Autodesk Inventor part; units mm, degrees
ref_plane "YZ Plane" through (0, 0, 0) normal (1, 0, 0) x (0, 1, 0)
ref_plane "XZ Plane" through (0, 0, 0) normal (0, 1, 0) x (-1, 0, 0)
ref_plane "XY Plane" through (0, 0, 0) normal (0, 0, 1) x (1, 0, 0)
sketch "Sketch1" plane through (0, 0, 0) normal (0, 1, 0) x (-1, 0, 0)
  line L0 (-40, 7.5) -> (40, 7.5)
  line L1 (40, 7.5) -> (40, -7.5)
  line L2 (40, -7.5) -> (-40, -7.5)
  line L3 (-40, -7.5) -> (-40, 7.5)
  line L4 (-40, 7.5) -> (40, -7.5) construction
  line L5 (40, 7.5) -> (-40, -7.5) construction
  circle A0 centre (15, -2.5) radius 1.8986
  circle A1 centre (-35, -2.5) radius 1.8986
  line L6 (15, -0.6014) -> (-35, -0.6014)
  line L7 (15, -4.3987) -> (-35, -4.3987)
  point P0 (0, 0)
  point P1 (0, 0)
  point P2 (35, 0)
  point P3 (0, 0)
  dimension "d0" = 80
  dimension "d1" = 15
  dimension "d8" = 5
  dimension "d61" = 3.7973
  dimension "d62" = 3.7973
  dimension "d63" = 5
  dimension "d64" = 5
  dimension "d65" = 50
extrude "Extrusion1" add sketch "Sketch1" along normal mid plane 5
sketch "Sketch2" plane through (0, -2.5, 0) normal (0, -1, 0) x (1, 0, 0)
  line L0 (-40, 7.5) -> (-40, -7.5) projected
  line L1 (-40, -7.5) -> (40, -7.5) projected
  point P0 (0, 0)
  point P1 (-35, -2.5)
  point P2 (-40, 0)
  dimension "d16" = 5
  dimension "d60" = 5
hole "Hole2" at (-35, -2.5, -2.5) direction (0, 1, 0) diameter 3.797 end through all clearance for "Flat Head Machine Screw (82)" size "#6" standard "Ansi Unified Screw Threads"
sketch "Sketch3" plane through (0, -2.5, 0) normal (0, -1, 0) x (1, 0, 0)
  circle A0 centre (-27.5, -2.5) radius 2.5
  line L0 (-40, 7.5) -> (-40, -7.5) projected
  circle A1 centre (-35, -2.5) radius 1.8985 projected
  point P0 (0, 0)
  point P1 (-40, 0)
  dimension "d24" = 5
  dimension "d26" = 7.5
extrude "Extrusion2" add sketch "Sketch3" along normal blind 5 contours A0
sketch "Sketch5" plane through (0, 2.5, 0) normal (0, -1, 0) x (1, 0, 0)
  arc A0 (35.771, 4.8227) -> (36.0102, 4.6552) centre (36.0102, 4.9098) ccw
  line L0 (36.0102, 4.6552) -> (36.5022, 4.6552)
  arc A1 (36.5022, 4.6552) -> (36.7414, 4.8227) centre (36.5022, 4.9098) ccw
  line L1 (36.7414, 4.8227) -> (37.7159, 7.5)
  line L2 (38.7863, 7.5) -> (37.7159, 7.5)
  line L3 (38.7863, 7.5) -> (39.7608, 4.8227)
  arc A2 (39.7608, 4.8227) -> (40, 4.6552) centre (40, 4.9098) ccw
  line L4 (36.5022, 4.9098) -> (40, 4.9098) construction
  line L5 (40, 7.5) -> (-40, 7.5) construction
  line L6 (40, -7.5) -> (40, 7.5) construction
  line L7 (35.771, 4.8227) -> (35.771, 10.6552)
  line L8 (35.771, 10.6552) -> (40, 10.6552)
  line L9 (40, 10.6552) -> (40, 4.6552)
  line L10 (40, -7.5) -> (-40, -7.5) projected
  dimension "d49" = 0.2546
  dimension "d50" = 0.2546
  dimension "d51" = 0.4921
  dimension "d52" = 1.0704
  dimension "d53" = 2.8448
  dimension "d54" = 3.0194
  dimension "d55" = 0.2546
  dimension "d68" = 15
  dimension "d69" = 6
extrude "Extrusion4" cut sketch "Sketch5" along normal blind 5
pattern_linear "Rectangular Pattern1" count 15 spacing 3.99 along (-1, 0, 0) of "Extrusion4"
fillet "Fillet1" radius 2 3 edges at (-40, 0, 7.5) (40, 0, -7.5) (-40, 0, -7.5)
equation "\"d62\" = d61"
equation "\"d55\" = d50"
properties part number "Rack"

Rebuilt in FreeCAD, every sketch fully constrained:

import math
import FreeCAD as App
import Part
import Sketcher

V = App.Vector
Q = App.Units.Quantity


def edges_at(feature, points):
    """Names of the edges that pass closest to the given points."""
    edges = feature.Shape.Edges
    near = lambda p: min(range(len(edges)), key=lambda i: edges[i].distToShape(Part.Vertex(*p))[0])
    return sorted({f"Edge{near(p) + 1}" for p in points})


def add_polygon(sketch, points):
    """Adds a closed chain of lines whose ends are joined by coincident constraints."""
    first, n = sketch.GeometryCount, len(points)
    for a, b in zip(points, points[1:] + points[:1]):
        sketch.addGeometry(Part.LineSegment(App.Vector(*a, 0), App.Vector(*b, 0)), False)
    for i in range(n):
        sketch.addConstraint(Sketcher.Constraint("Coincident", first + i, 2, first + (i + 1) % n, 1))

doc = App.newDocument("Part")
body = doc.addObject("PartDesign::Body", "Body")

sketch1 = doc.addObject("Sketcher::SketchObject", "Sketch")
body.addObject(sketch1)
sketch1.AttachmentSupport = (doc.XZ_Plane, [""])
sketch1.MapMode = "FlatFace"
add_polygon(sketch1, [(-40, 7.5), (40, 7.5), (40, -7.5), (-40, -7.5)])
sketch1.addGeometry(Part.ArcOfCircle(Part.Circle(V(-15, -2.5, 0), V(0, 0, 1), 1.9), math.radians(90), math.radians(270)), False)
sketch1.addGeometry(Part.LineSegment(V(-15, -4.4, 0), V(35, -4.4, 0)), False)
sketch1.addGeometry(Part.ArcOfCircle(Part.Circle(V(35, -2.5, 0), V(0, 0, 1), 1.9), math.radians(-90), math.radians(90)), False)
sketch1.addGeometry(Part.LineSegment(V(35, -0.6, 0), V(-15, -0.6, 0)), False)
sketch1.addConstraint(Sketcher.Constraint("Tangent", 4, 2, 5, 1))
sketch1.addConstraint(Sketcher.Constraint("Tangent", 5, 2, 6, 1))
sketch1.addConstraint(Sketcher.Constraint("Tangent", 6, 2, 7, 1))
sketch1.addConstraint(Sketcher.Constraint("Tangent", 7, 2, 4, 1))
sketch1.addConstraint(Sketcher.Constraint("Horizontal", 0))
sketch1.addConstraint(Sketcher.Constraint("Vertical", 1))
sketch1.addConstraint(Sketcher.Constraint("Horizontal", 2))
sketch1.addConstraint(Sketcher.Constraint("Vertical", 3))
sketch1.addConstraint(Sketcher.Constraint("Horizontal", 5))
sketch1.addConstraint(Sketcher.Constraint("Horizontal", 7))
sketch1.addConstraint(Sketcher.Constraint("Symmetric", 0, 2, 2, 2, -1, 1))
sketch1.addConstraint(Sketcher.Constraint("DistanceX", 0, 1, 0, 2, 80.0))
sketch1.addConstraint(Sketcher.Constraint("DistanceX", 5, 1, 5, 2, 50.0))
sketch1.addConstraint(Sketcher.Constraint("DistanceY", 1, 2, 1, 1, 15.0))
sketch1.addConstraint(Sketcher.Constraint("DistanceX", 4, 3, -1, 1, 15.0))
sketch1.addConstraint(Sketcher.Constraint("DistanceY", 1, 2, 6, 3, 5.0))
sketch1.addConstraint(Sketcher.Constraint("Radius", 4, 1.8986))
pad1 = doc.addObject("PartDesign::Pad", "Pad")
body.addObject(pad1)
pad1.Profile = sketch1
pad1.Length = 5
pad1.Midplane = True

sketch2 = doc.addObject("Sketcher::SketchObject", "Sketch001")
body.addObject(sketch2)
sketch2.AttachmentSupport = (doc.XZ_Plane, [""])
sketch2.MapMode = "FlatFace"
sketch2.AttachmentOffset = App.Placement(V(0, 0, 2.5), App.Rotation())
sketch2.addGeometry(Part.Circle(V(-35, -2.5, 0), V(0, 0, 1), 1.9), False)
sketch2.addConstraint(Sketcher.Constraint("Diameter", 0, 3.797))
sketch2.addConstraint(Sketcher.Constraint("DistanceX", 0, 3, -1, 1, 35.0))
sketch2.addConstraint(Sketcher.Constraint("DistanceY", 0, 3, -1, 1, 2.5))
doc.recompute()
hole = doc.addObject("PartDesign::Hole", "Hole")
body.addObject(hole)
hole.Profile = sketch2
hole.ThreadType = "None"
hole.Diameter = 3.797
hole.DepthType = "ThroughAll"

sketch3 = doc.addObject("Sketcher::SketchObject", "Sketch002")
body.addObject(sketch3)
sketch3.AttachmentSupport = (doc.XZ_Plane, [""])
sketch3.MapMode = "FlatFace"
sketch3.AttachmentOffset = App.Placement(V(0, 0, 2.5), App.Rotation())
sketch3.addGeometry(Part.Circle(V(-27.5, -2.5, 0), V(0, 0, 1), 2.5), False)
sketch3.addConstraint(Sketcher.Constraint("Diameter", 0, 5.0))
sketch3.addConstraint(Sketcher.Constraint("DistanceX", 0, 3, -1, 1, 27.5))
sketch3.addConstraint(Sketcher.Constraint("DistanceY", 0, 3, -1, 1, 2.5))
pad2 = doc.addObject("PartDesign::Pad", "Pad001")
body.addObject(pad2)
pad2.Profile = sketch3
pad2.Length = 5

sketch4 = doc.addObject("Sketcher::SketchObject", "Sketch003")
body.addObject(sketch4)
sketch4.AttachmentSupport = (doc.XZ_Plane, [""])
sketch4.MapMode = "FlatFace"
sketch4.AttachmentOffset = App.Placement(V(0, 0, -2.5), App.Rotation())
sketch4.addGeometry(Part.LineSegment(V(35.77, 10.66, 0), V(35.77, 4.82, 0)), False)
sketch4.addGeometry(Part.ArcOfCircle(Part.Circle(V(36.01, 4.91, 0), V(0, 0, 1), 0.25), math.radians(-160), math.radians(-90)), False)
sketch4.addGeometry(Part.LineSegment(V(36.01, 4.66, 0), V(36.5, 4.66, 0)), False)
sketch4.addGeometry(Part.ArcOfCircle(Part.Circle(V(36.5, 4.91, 0), V(0, 0, 1), 0.25), math.radians(-90), math.radians(-20)), False)
sketch4.addGeometry(Part.LineSegment(V(36.74, 4.82, 0), V(37.72, 7.5, 0)), False)
sketch4.addGeometry(Part.LineSegment(V(37.72, 7.5, 0), V(38.79, 7.5, 0)), False)
sketch4.addGeometry(Part.LineSegment(V(38.79, 7.5, 0), V(39.76, 4.82, 0)), False)
sketch4.addGeometry(Part.ArcOfCircle(Part.Circle(V(40, 4.91, 0), V(0, 0, 1), 0.25), math.radians(-160), math.radians(-90)), False)
sketch4.addGeometry(Part.LineSegment(V(40, 4.66, 0), V(40, 10.66, 0)), False)
sketch4.addGeometry(Part.LineSegment(V(40, 10.66, 0), V(35.77, 10.66, 0)), False)
sketch4.addConstraint(Sketcher.Constraint("Coincident", 0, 2, 1, 1))
sketch4.addConstraint(Sketcher.Constraint("Tangent", 1, 2, 2, 1))
sketch4.addConstraint(Sketcher.Constraint("Tangent", 2, 2, 3, 1))
sketch4.addConstraint(Sketcher.Constraint("Tangent", 3, 2, 4, 1))
sketch4.addConstraint(Sketcher.Constraint("Coincident", 4, 2, 5, 1))
sketch4.addConstraint(Sketcher.Constraint("Coincident", 5, 2, 6, 1))
sketch4.addConstraint(Sketcher.Constraint("Tangent", 6, 2, 7, 1))
sketch4.addConstraint(Sketcher.Constraint("Coincident", 7, 2, 8, 1))
sketch4.addConstraint(Sketcher.Constraint("Coincident", 8, 2, 9, 1))
sketch4.addConstraint(Sketcher.Constraint("Coincident", 9, 2, 0, 1))
sketch4.addConstraint(Sketcher.Constraint("Vertical", 0))
sketch4.addConstraint(Sketcher.Constraint("Horizontal", 2))
sketch4.addConstraint(Sketcher.Constraint("Horizontal", 5))
sketch4.addConstraint(Sketcher.Constraint("Vertical", 8))
sketch4.addConstraint(Sketcher.Constraint("Horizontal", 9))
sketch4.addConstraint(Sketcher.Constraint("Equal", 1, 3))
sketch4.addConstraint(Sketcher.Constraint("Equal", 3, 7))
sketch4.addConstraint(Sketcher.Constraint("Horizontal", 3, 3, 7, 3))
sketch4.addConstraint(Sketcher.Constraint("Horizontal", 0, 2, 3, 2))
sketch4.addConstraint(Sketcher.Constraint("Horizontal", 3, 2, 6, 2))
sketch4.addConstraint(Sketcher.Constraint("DistanceY", 8, 1, 8, 2, 6.0))
sketch4.addConstraint(Sketcher.Constraint("Radius", 1, 0.2546))
sketch4.addConstraint(Sketcher.Constraint("DistanceX", 2, 1, 2, 2, 0.492))
sketch4.addConstraint(Sketcher.Constraint("Angle", 4, Q("69.9992 deg")))
sketch4.addConstraint(Sketcher.Constraint("DistanceX", 5, 1, 5, 2, 1.0704))
sketch4.addConstraint(Sketcher.Constraint("DistanceX", -1, 1, 7, 3, 40.0))
sketch4.addConstraint(Sketcher.Constraint("DistanceX", -1, 1, 7, 2, 40.0))
sketch4.addConstraint(Sketcher.Constraint("DistanceY", -1, 1, 4, 2, 7.5))
sketch4.addConstraint(Sketcher.Constraint("DistanceY", 2, 2, 4, 2, 2.8448))
pocket1 = doc.addObject("PartDesign::Pocket", "Pocket")
body.addObject(pocket1)
pocket1.Profile = sketch4
pocket1.Length = 5
pocket1.Reversed = True
doc.recompute()

linearpattern = doc.addObject("PartDesign::LinearPattern", "LinearPattern")
body.addObject(linearpattern)
linearpattern.Originals = [pocket1]
linearpattern.Direction = (doc.X_Axis, [""])
linearpattern.Mode = "offset"
linearpattern.Offset = 3.99
linearpattern.Occurrences = 15
linearpattern.Reversed = True
body.Tip = linearpattern
doc.recompute()

fillet = doc.addObject("PartDesign::Fillet", "Fillet")
body.addObject(fillet)
fillet.Base = (linearpattern, edges_at(linearpattern, [(-40, 0, 7.5), (40, 0, -7.5), (-40, 0, -7.5)]))
fillet.Radius = 2

doc.recompute()
